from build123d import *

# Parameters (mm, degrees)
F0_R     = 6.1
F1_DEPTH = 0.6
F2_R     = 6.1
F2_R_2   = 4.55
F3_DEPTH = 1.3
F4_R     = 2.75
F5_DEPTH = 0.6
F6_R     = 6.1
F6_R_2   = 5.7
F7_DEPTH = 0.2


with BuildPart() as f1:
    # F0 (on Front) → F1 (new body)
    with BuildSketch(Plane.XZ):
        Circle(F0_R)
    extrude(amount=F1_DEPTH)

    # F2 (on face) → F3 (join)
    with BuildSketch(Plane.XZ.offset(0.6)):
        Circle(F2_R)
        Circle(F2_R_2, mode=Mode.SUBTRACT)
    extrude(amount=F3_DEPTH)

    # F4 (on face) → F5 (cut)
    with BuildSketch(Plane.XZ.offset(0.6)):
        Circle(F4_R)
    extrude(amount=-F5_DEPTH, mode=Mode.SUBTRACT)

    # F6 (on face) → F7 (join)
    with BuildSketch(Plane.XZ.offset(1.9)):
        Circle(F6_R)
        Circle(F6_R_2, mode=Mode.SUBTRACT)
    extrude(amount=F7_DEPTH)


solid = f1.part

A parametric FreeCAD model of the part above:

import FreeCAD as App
import Part
import Sketcher
from FreeCAD import Vector

doc = App.newDocument("Part")
body = doc.addObject("PartDesign::Body", "Body")

# Sketch on XZ plane
sketch1 = body.newObject("Sketcher::SketchObject", "Sketch")
sketch1.AttachmentSupport = (doc.getObject("XZ_Plane"), [""])
sketch1.MapMode = "FlatFace"
sketch1.addGeometry(Part.Circle(Vector(0, 0, 0), Vector(0, 0, 1), 6), False)
sketch1.addConstraint([
    Sketcher.Constraint("Coincident", 0, 3, -1, 1),
    Sketcher.Constraint("Diameter", 0, 12.2),
])
pad1 = body.newObject("PartDesign::Pad", "Pad")
pad1.Profile = sketch1
pad1.Length = 0.6

# Sketch on XZ plane
sketch2 = body.newObject("Sketcher::SketchObject", "Sketch001")
sketch2.AttachmentSupport = (doc.getObject("XZ_Plane"), [""])
sketch2.MapMode = "FlatFace"
sketch2.AttachmentOffset = App.Placement(Vector(0, 0, 0.6), App.Rotation())
sketch2.addGeometry([
    Part.Circle(Vector(0, 0, 0), Vector(0, 0, 1), 6.1),
    Part.Circle(Vector(0, 0, 0), Vector(0, 0, 1), 4.5),
], False)
sketch2.addConstraint([
    Sketcher.Constraint("Coincident", 0, 3, -1, 1),
    Sketcher.Constraint("Coincident", 1, 3, -1, 1),
    Sketcher.Constraint("Diameter", 0, 12.2),
    Sketcher.Constraint("Diameter", 1, 9.1),
])
pad2 = body.newObject("PartDesign::Pad", "Pad001")
pad2.Profile = sketch2
pad2.Length = 1.3

# Sketch on XZ plane
sketch3 = body.newObject("Sketcher::SketchObject", "Sketch002")
sketch3.AttachmentSupport = (doc.getObject("XZ_Plane"), [""])
sketch3.MapMode = "FlatFace"
sketch3.AttachmentOffset = App.Placement(Vector(0, 0, 0.6), App.Rotation())
sketch3.addGeometry(Part.Circle(Vector(0, 0, 0), Vector(0, 0, 1), 2.8), False)
sketch3.addConstraint([
    Sketcher.Constraint("Coincident", 0, 3, -1, 1),
    Sketcher.Constraint("Diameter", 0, 5.5),
])
pocket1 = body.newObject("PartDesign::Pocket", "Pocket")
pocket1.Profile = sketch3
pocket1.Length = 0.6

# Sketch on XZ plane
sketch4 = body.newObject("Sketcher::SketchObject", "Sketch003")
sketch4.AttachmentSupport = (doc.getObject("XZ_Plane"), [""])
sketch4.MapMode = "FlatFace"
sketch4.AttachmentOffset = App.Placement(Vector(0, 0, 1.9), App.Rotation())
sketch4.addGeometry([
    Part.Circle(Vector(0, 0, 0), Vector(0, 0, 1), 6),
    Part.Circle(Vector(0, 0, 0), Vector(0, 0, 1), 6),
], False)
sketch4.addConstraint([
    Sketcher.Constraint("Coincident", 0, 3, -1, 1),
    Sketcher.Constraint("Coincident", 1, 3, -1, 1),
    Sketcher.Constraint("Diameter", 0, 12.2),
    Sketcher.Constraint("Diameter", 1, 11.4),
])
pad3 = body.newObject("PartDesign::Pad", "Pad002")
pad3.Profile = sketch4
pad3.Length = 0.2

doc.recompute()
